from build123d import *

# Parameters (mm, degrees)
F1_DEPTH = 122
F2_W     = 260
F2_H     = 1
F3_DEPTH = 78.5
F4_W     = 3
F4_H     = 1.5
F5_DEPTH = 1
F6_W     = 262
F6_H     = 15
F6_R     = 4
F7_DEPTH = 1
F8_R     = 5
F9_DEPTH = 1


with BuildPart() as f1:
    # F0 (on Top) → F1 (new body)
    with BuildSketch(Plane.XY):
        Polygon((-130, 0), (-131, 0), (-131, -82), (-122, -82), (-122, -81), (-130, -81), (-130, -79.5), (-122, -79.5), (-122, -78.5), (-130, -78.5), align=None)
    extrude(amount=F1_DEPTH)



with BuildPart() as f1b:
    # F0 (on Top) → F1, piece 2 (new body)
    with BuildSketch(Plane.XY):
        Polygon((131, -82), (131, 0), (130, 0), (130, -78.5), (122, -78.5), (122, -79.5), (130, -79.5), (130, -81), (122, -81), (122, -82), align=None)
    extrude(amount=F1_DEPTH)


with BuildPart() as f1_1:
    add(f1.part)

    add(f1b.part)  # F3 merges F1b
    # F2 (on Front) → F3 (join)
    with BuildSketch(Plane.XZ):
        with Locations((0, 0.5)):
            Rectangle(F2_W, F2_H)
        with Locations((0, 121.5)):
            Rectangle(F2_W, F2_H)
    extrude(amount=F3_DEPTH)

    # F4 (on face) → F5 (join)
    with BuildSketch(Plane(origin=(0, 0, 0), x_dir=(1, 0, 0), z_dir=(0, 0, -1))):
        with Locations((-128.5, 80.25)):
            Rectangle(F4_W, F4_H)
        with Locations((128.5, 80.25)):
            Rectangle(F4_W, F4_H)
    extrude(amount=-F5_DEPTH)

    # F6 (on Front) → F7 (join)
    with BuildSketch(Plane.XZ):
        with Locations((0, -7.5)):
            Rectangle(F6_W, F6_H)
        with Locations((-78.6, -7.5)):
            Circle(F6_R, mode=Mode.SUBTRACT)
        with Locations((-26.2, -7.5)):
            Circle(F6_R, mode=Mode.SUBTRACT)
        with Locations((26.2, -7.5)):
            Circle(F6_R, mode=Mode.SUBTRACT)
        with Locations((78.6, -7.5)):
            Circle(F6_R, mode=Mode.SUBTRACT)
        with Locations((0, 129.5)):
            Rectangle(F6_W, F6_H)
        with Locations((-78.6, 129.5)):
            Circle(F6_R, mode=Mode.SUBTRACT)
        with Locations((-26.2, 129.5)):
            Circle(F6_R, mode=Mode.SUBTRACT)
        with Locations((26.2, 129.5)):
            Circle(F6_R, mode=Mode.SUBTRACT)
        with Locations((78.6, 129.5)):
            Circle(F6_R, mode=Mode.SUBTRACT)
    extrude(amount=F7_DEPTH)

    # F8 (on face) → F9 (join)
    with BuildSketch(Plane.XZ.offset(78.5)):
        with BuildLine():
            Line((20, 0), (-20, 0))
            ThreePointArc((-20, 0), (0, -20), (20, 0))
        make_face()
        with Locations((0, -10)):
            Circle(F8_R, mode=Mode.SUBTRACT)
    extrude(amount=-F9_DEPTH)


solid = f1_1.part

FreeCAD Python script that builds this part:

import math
import FreeCAD as App
import Part
import Sketcher

doc = App.newDocument("Part")
body = doc.addObject("PartDesign::Body", "Body")

# Sketch on XY plane
sketch1 = doc.addObject("Sketcher::SketchObject", "Sketch")
body.addObject(sketch1)
sketch1.AttachmentSupport = (doc.XY_Plane, [""])
sketch1.MapMode = "FlatFace"
sketch1.addGeometry(Part.LineSegment(App.Vector(-130, 0, 0), App.Vector(-131, 0, 0)), False)
sketch1.addGeometry(Part.LineSegment(App.Vector(-131, 0, 0), App.Vector(-131, -82, 0)), False)
sketch1.addGeometry(Part.LineSegment(App.Vector(-131, -82, 0), App.Vector(-122, -82, 0)), False)
sketch1.addGeometry(Part.LineSegment(App.Vector(-122, -82, 0), App.Vector(-122, -81, 0)), False)
sketch1.addGeometry(Part.LineSegment(App.Vector(-122, -81, 0), App.Vector(-130, -81, 0)), False)
sketch1.addGeometry(Part.LineSegment(App.Vector(-130, -81, 0), App.Vector(-130, -79.5, 0)), False)
sketch1.addGeometry(Part.LineSegment(App.Vector(-130, -79.5, 0), App.Vector(-122, -79.5, 0)), False)
sketch1.addGeometry(Part.LineSegment(App.Vector(-122, -79.5, 0), App.Vector(-122, -78.5, 0)), False)
sketch1.addGeometry(Part.LineSegment(App.Vector(-122, -78.5, 0), App.Vector(-130, -78.5, 0)), False)
sketch1.addGeometry(Part.LineSegment(App.Vector(-130, -78.5, 0), App.Vector(-130, 0, 0)), False)
sketch1.addConstraint(Sketcher.Constraint("Coincident", 0, 2, 1, 1))
sketch1.addConstraint(Sketcher.Constraint("Coincident", 1, 2, 2, 1))
sketch1.addConstraint(Sketcher.Constraint("Coincident", 2, 2, 3, 1))
sketch1.addConstraint(Sketcher.Constraint("Coincident", 3, 2, 4, 1))
sketch1.addConstraint(Sketcher.Constraint("Coincident", 4, 2, 5, 1))
sketch1.addConstraint(Sketcher.Constraint("Coincident", 5, 2, 6, 1))
sketch1.addConstraint(Sketcher.Constraint("Coincident", 6, 2, 7, 1))
sketch1.addConstraint(Sketcher.Constraint("Coincident", 7, 2, 8, 1))
sketch1.addConstraint(Sketcher.Constraint("Coincident", 8, 2, 9, 1))
sketch1.addConstraint(Sketcher.Constraint("Coincident", 9, 2, 0, 1))
sketch1.addConstraint(Sketcher.Constraint("Horizontal", 0))
sketch1.addConstraint(Sketcher.Constraint("Vertical", 1))
sketch1.addConstraint(Sketcher.Constraint("Horizontal", 2))
sketch1.addConstraint(Sketcher.Constraint("Vertical", 3))
sketch1.addConstraint(Sketcher.Constraint("Horizontal", 4))
sketch1.addConstraint(Sketcher.Constraint("Vertical", 5))
sketch1.addConstraint(Sketcher.Constraint("Horizontal", 6))
sketch1.addConstraint(Sketcher.Constraint("Vertical", 7))
sketch1.addConstraint(Sketcher.Constraint("Horizontal", 8))
sketch1.addConstraint(Sketcher.Constraint("Vertical", 9))
sketch1.addConstraint(Sketcher.Constraint("PointOnObject", 0, 2, -1))
sketch1.addConstraint(Sketcher.Constraint("Vertical", 3, 2, 6, 2))
sketch1.addConstraint(Sketcher.Constraint("Vertical", 5, 2, 8, 2))
sketch1.addConstraint(Sketcher.Constraint("Equal", 0, 3))
sketch1.addConstraint(Sketcher.Constraint("Equal", 3, 7))
sketch1.addConstraint(Sketcher.Constraint("DistanceX", 0, 2, 0, 1, 1.0))
sketch1.addConstraint(Sketcher.Constraint("DistanceX", 2, 1, 2, 2, 9.0))
sketch1.addConstraint(Sketcher.Constraint("DistanceY", 1, 2, 1, 1, 82.0))
sketch1.addConstraint(Sketcher.Constraint("DistanceY", 5, 1, 5, 2, 1.5))
sketch1.addConstraint(Sketcher.Constraint("DistanceX", 0, 2, -1, 1, 131.0))
pad1 = doc.addObject("PartDesign::Pad", "Pad")
body.addObject(pad1)
pad1.Profile = sketch1
pad1.Length = 122
body2 = doc.addObject("PartDesign::Body", "Body001")

# Sketch on XY plane
sketch2 = doc.addObject("Sketcher::SketchObject", "Sketch001")
body2.addObject(sketch2)
sketch2.AttachmentSupport = (doc.getObject("XY_Plane001"), [""])
sketch2.MapMode = "FlatFace"
sketch2.addGeometry(Part.LineSegment(App.Vector(131, -82, 0), App.Vector(131, 0, 0)), False)
sketch2.addGeometry(Part.LineSegment(App.Vector(131, 0, 0), App.Vector(130, 0, 0)), False)
sketch2.addGeometry(Part.LineSegment(App.Vector(130, 0, 0), App.Vector(130, -78.5, 0)), False)
sketch2.addGeometry(Part.LineSegment(App.Vector(130, -78.5, 0), App.Vector(122, -78.5, 0)), False)
sketch2.addGeometry(Part.LineSegment(App.Vector(122, -78.5, 0), App.Vector(122, -79.5, 0)), False)
sketch2.addGeometry(Part.LineSegment(App.Vector(122, -79.5, 0), App.Vector(130, -79.5, 0)), False)
sketch2.addGeometry(Part.LineSegment(App.Vector(130, -79.5, 0), App.Vector(130, -81, 0)), False)
sketch2.addGeometry(Part.LineSegment(App.Vector(130, -81, 0), App.Vector(122, -81, 0)), False)
sketch2.addGeometry(Part.LineSegment(App.Vector(122, -81, 0), App.Vector(122, -82, 0)), False)
sketch2.addGeometry(Part.LineSegment(App.Vector(122, -82, 0), App.Vector(131, -82, 0)), False)
sketch2.addConstraint(Sketcher.Constraint("Coincident", 0, 2, 1, 1))
sketch2.addConstraint(Sketcher.Constraint("Coincident", 1, 2, 2, 1))
sketch2.addConstraint(Sketcher.Constraint("Coincident", 2, 2, 3, 1))
sketch2.addConstraint(Sketcher.Constraint("Coincident", 3, 2, 4, 1))
sketch2.addConstraint(Sketcher.Constraint("Coincident", 4, 2, 5, 1))
sketch2.addConstraint(Sketcher.Constraint("Coincident", 5, 2, 6, 1))
sketch2.addConstraint(Sketcher.Constraint("Coincident", 6, 2, 7, 1))
sketch2.addConstraint(Sketcher.Constraint("Coincident", 7, 2, 8, 1))
sketch2.addConstraint(Sketcher.Constraint("Coincident", 8, 2, 9, 1))
sketch2.addConstraint(Sketcher.Constraint("Coincident", 9, 2, 0, 1))
sketch2.addConstraint(Sketcher.Constraint("Vertical", 0))
sketch2.addConstraint(Sketcher.Constraint("Horizontal", 1))
sketch2.addConstraint(Sketcher.Constraint("Vertical", 2))
sketch2.addConstraint(Sketcher.Constraint("Horizontal", 3))
sketch2.addConstraint(Sketcher.Constraint("Vertical", 4))
sketch2.addConstraint(Sketcher.Constraint("Horizontal", 5))
sketch2.addConstraint(Sketcher.Constraint("Vertical", 6))
sketch2.addConstraint(Sketcher.Constraint("Horizontal", 7))
sketch2.addConstraint(Sketcher.Constraint("Vertical", 8))
sketch2.addConstraint(Sketcher.Constraint("Horizontal", 9))
sketch2.addConstraint(Sketcher.Constraint("PointOnObject", 0, 2, -1))
sketch2.addConstraint(Sketcher.Constraint("Vertical", 2, 2, 5, 2))
sketch2.addConstraint(Sketcher.Constraint("Vertical", 4, 2, 7, 2))
sketch2.addConstraint(Sketcher.Constraint("Equal", 1, 4))
sketch2.addConstraint(Sketcher.Constraint("Equal", 4, 8))
sketch2.addConstraint(Sketcher.Constraint("DistanceX", 1, 2, 1, 1, 1.0))
sketch2.addConstraint(Sketcher.Constraint("DistanceX", 3, 2, 3, 1, 8.0))
sketch2.addConstraint(Sketcher.Constraint("DistanceY", 0, 1, 0, 2, 82.0))
sketch2.addConstraint(Sketcher.Constraint("DistanceY", 2, 2, 2, 1, 78.5))
sketch2.addConstraint(Sketcher.Constraint("DistanceX", -1, 1, 0, 2, 131.0))
pad2 = doc.addObject("PartDesign::Pad", "Pad001")
body2.addObject(pad2)
pad2.Profile = sketch2
pad2.Length = 122
body.AllowCompound = True
doc.recompute()

boolean = doc.addObject("PartDesign::Boolean", "Boolean")
body.addObject(boolean)
boolean.Type = "Fuse"
boolean.addObjects([body2])

# Sketch on XZ plane
sketch3 = doc.addObject("Sketcher::SketchObject", "Sketch002")
body.addObject(sketch3)
sketch3.AttachmentSupport = (doc.XZ_Plane, [""])
sketch3.MapMode = "FlatFace"
sketch3.addGeometry(Part.LineSegment(App.Vector(-130, 1, 0), App.Vector(-130, 0, 0)), False)
sketch3.addGeometry(Part.LineSegment(App.Vector(-130, 0, 0), App.Vector(130, 0, 0)), False)
sketch3.addGeometry(Part.LineSegment(App.Vector(130, 0, 0), App.Vector(130, 1, 0)), False)
sketch3.addGeometry(Part.LineSegment(App.Vector(130, 1, 0), App.Vector(-130, 1, 0)), False)
sketch3.addGeometry(Part.LineSegment(App.Vector(-130, 122, 0), App.Vector(-130, 121, 0)), False)
sketch3.addGeometry(Part.LineSegment(App.Vector(-130, 121, 0), App.Vector(130, 121, 0)), False)
sketch3.addGeometry(Part.LineSegment(App.Vector(130, 121, 0), App.Vector(130, 122, 0)), False)
sketch3.addGeometry(Part.LineSegment(App.Vector(130, 122, 0), App.Vector(-130, 122, 0)), False)
sketch3.addConstraint(Sketcher.Constraint("Coincident", 0, 2, 1, 1))
sketch3.addConstraint(Sketcher.Constraint("Coincident", 1, 2, 2, 1))
sketch3.addConstraint(Sketcher.Constraint("Coincident", 2, 2, 3, 1))
sketch3.addConstraint(Sketcher.Constraint("Coincident", 3, 2, 0, 1))
sketch3.addConstraint(Sketcher.Constraint("Coincident", 4, 2, 5, 1))
sketch3.addConstraint(Sketcher.Constraint("Coincident", 5, 2, 6, 1))
sketch3.addConstraint(Sketcher.Constraint("Coincident", 6, 2, 7, 1))
sketch3.addConstraint(Sketcher.Constraint("Coincident", 7, 2, 4, 1))
sketch3.addConstraint(Sketcher.Constraint("Vertical", 0))
sketch3.addConstraint(Sketcher.Constraint("Horizontal", 1))
sketch3.addConstraint(Sketcher.Constraint("Vertical", 2))
sketch3.addConstraint(Sketcher.Constraint("Horizontal", 3))
sketch3.addConstraint(Sketcher.Constraint("Vertical", 4))
sketch3.addConstraint(Sketcher.Constraint("Horizontal", 5))
sketch3.addConstraint(Sketcher.Constraint("Vertical", 6))
sketch3.addConstraint(Sketcher.Constraint("Horizontal", 7))
sketch3.addConstraint(Sketcher.Constraint("Symmetric", 0, 2, 1, 2, -1, 1))
sketch3.addConstraint(Sketcher.Constraint("Vertical", 3, 2, 4, 2))
sketch3.addConstraint(Sketcher.Constraint("Vertical", 2, 2, 5, 2))
sketch3.addConstraint(Sketcher.Constraint("Equal", 2, 4))
sketch3.addConstraint(Sketcher.Constraint("DistanceX", 1, 1, 1, 2, 260.0))
sketch3.addConstraint(Sketcher.Constraint("DistanceY", 0, 2, 0, 1, 1.0))
sketch3.addConstraint(Sketcher.Constraint("DistanceY", -1, 1, 4, 2, 121.0))
pad3 = doc.addObject("PartDesign::Pad", "Pad002")
body.addObject(pad3)
pad3.Profile = sketch3
pad3.Length = 78.5

# Sketch on XY plane
sketch4 = doc.addObject("Sketcher::SketchObject", "Sketch003")
body.addObject(sketch4)
sketch4.AttachmentSupport = (doc.XY_Plane, [""])
sketch4.MapMode = "FlatFace"
sketch4.addGeometry(Part.LineSegment(App.Vector(-130, -81, 0), App.Vector(-130, -79.5, 0)), False)
sketch4.addGeometry(Part.LineSegment(App.Vector(-130, -79.5, 0), App.Vector(-127, -79.5, 0)), False)
sketch4.addGeometry(Part.LineSegment(App.Vector(-127, -79.5, 0), App.Vector(-127, -81, 0)), False)
sketch4.addGeometry(Part.LineSegment(App.Vector(-127, -81, 0), App.Vector(-130, -81, 0)), False)
sketch4.addGeometry(Part.LineSegment(App.Vector(127, -81, 0), App.Vector(127, -79.5, 0)), False)
sketch4.addGeometry(Part.LineSegment(App.Vector(127, -79.5, 0), App.Vector(130, -79.5, 0)), False)
sketch4.addGeometry(Part.LineSegment(App.Vector(130, -79.5, 0), App.Vector(130, -81, 0)), False)
sketch4.addGeometry(Part.LineSegment(App.Vector(130, -81, 0), App.Vector(127, -81, 0)), False)
sketch4.addConstraint(Sketcher.Constraint("Coincident", 0, 2, 1, 1))
sketch4.addConstraint(Sketcher.Constraint("Coincident", 1, 2, 2, 1))
sketch4.addConstraint(Sketcher.Constraint("Coincident", 2, 2, 3, 1))
sketch4.addConstraint(Sketcher.Constraint("Coincident", 3, 2, 0, 1))
sketch4.addConstraint(Sketcher.Constraint("Coincident", 4, 2, 5, 1))
sketch4.addConstraint(Sketcher.Constraint("Coincident", 5, 2, 6, 1))
sketch4.addConstraint(Sketcher.Constraint("Coincident", 6, 2, 7, 1))
sketch4.addConstraint(Sketcher.Constraint("Coincident", 7, 2, 4, 1))
sketch4.addConstraint(Sketcher.Constraint("Vertical", 0))
sketch4.addConstraint(Sketcher.Constraint("Horizontal", 1))
sketch4.addConstraint(Sketcher.Constraint("Vertical", 2))
sketch4.addConstraint(Sketcher.Constraint("Horizontal", 3))
sketch4.addConstraint(Sketcher.Constraint("Vertical", 4))
sketch4.addConstraint(Sketcher.Constraint("Horizontal", 5))
sketch4.addConstraint(Sketcher.Constraint("Vertical", 6))
sketch4.addConstraint(Sketcher.Constraint("Horizontal", 7))
sketch4.addConstraint(Sketcher.Constraint("Symmetric", 1, 2, 4, 2, -2))
sketch4.addConstraint(Sketcher.Constraint("Symmetric", 3, 2, 6, 2, -2))
sketch4.addConstraint(Sketcher.Constraint("DistanceX", 1, 1, 1, 2, 3.0))
sketch4.addConstraint(Sketcher.Constraint("DistanceY", 0, 1, 0, 2, 1.5))
sketch4.addConstraint(Sketcher.Constraint("DistanceX", 0, 2, -1, 1, 130.0))
sketch4.addConstraint(Sketcher.Constraint("DistanceY", 2, 2, -1, 1, 81.0))
pad4 = doc.addObject("PartDesign::Pad", "Pad003")
body.addObject(pad4)
pad4.Profile = sketch4
pad4.Length = 1

# Sketch on XZ plane
sketch5 = doc.addObject("Sketcher::SketchObject", "Sketch004")
body.addObject(sketch5)
sketch5.AttachmentSupport = (doc.XZ_Plane, [""])
sketch5.MapMode = "FlatFace"
sketch5.addGeometry(Part.LineSegment(App.Vector(-131, 0, 0), App.Vector(-131, -15, 0)), False)
sketch5.addGeometry(Part.LineSegment(App.Vector(-131, -15, 0), App.Vector(131, -15, 0)), False)
sketch5.addGeometry(Part.LineSegment(App.Vector(131, -15, 0), App.Vector(131, 0, 0)), False)
sketch5.addGeometry(Part.LineSegment(App.Vector(131, 0, 0), App.Vector(-131, 0, 0)), False)
sketch5.addGeometry(Part.Circle(App.Vector(-78.6, -7.5, 0), App.Vector(0, 0, 1), 4), False)
sketch5.addGeometry(Part.Circle(App.Vector(-26.2, -7.5, 0), App.Vector(0, 0, 1), 4), False)
sketch5.addGeometry(Part.Circle(App.Vector(26.2, -7.5, 0), App.Vector(0, 0, 1), 4), False)
sketch5.addGeometry(Part.Circle(App.Vector(78.6, -7.5, 0), App.Vector(0, 0, 1), 4), False)
sketch5.addGeometry(Part.LineSegment(App.Vector(-131, 137, 0), App.Vector(-131, 122, 0)), False)
sketch5.addGeometry(Part.LineSegment(App.Vector(-131, 122, 0), App.Vector(131, 122, 0)), False)
sketch5.addGeometry(Part.LineSegment(App.Vector(131, 122, 0), App.Vector(131, 137, 0)), False)
sketch5.addGeometry(Part.LineSegment(App.Vector(131, 137, 0), App.Vector(-131, 137, 0)), False)
sketch5.addGeometry(Part.Circle(App.Vector(-78.6, 129.5, 0), App.Vector(0, 0, 1), 4), False)
sketch5.addGeometry(Part.Circle(App.Vector(-26.2, 129.5, 0), App.Vector(0, 0, 1), 4), False)
sketch5.addGeometry(Part.Circle(App.Vector(26.2, 129.5, 0), App.Vector(0, 0, 1), 4), False)
sketch5.addGeometry(Part.Circle(App.Vector(78.6, 129.5, 0), App.Vector(0, 0, 1), 4), False)
sketch5.addConstraint(Sketcher.Constraint("Coincident", 0, 2, 1, 1))
sketch5.addConstraint(Sketcher.Constraint("Coincident", 1, 2, 2, 1))
sketch5.addConstraint(Sketcher.Constraint("Coincident", 2, 2, 3, 1))
sketch5.addConstraint(Sketcher.Constraint("Coincident", 3, 2, 0, 1))
sketch5.addConstraint(Sketcher.Constraint("Coincident", 8, 2, 9, 1))
sketch5.addConstraint(Sketcher.Constraint("Coincident", 9, 2, 10, 1))
sketch5.addConstraint(Sketcher.Constraint("Coincident", 10, 2, 11, 1))
sketch5.addConstraint(Sketcher.Constraint("Coincident", 11, 2, 8, 1))
sketch5.addConstraint(Sketcher.Constraint("Vertical", 0))
sketch5.addConstraint(Sketcher.Constraint("Horizontal", 1))
sketch5.addConstraint(Sketcher.Constraint("Vertical", 2))
sketch5.addConstraint(Sketcher.Constraint("Horizontal", 3))
sketch5.addConstraint(Sketcher.Constraint("Vertical", 8))
sketch5.addConstraint(Sketcher.Constraint("Horizontal", 9))
sketch5.addConstraint(Sketcher.Constraint("Vertical", 10))
sketch5.addConstraint(Sketcher.Constraint("Horizontal", 11))
sketch5.addConstraint(Sketcher.Constraint("Equal", 4, 5))
sketch5.addConstraint(Sketcher.Constraint("Equal", 5, 6))
sketch5.addConstraint(Sketcher.Constraint("Equal", 6, 7))
sketch5.addConstraint(Sketcher.Constraint("Equal", 7, 12))
sketch5.addConstraint(Sketcher.Constraint("Equal", 12, 13))
sketch5.addConstraint(Sketcher.Constraint("Equal", 13, 14))
sketch5.addConstraint(Sketcher.Constraint("Equal", 14, 15))
sketch5.addConstraint(Sketcher.Constraint("Symmetric", 2, 2, 3, 2, -1, 1))
sketch5.addConstraint(Sketcher.Constraint("Symmetric", 5, 3, 6, 3, -2))
sketch5.addConstraint(Sketcher.Constraint("Symmetric", 4, 3, 7, 3, -2))
sketch5.addConstraint(Sketcher.Constraint("Symmetric", 13, 3, 14, 3, -2))
sketch5.addConstraint(Sketcher.Constraint("Symmetric", 12, 3, 15, 3, -2))
sketch5.addConstraint(Sketcher.Constraint("Horizontal", 4, 3, 5, 3))
sketch5.addConstraint(Sketcher.Constraint("Horizontal", 12, 3, 13, 3))
sketch5.addConstraint(Sketcher.Constraint("Vertical", 4, 3, 12, 3))
sketch5.addConstraint(Sketcher.Constraint("Vertical", 5, 3, 13, 3))
sketch5.addConstraint(Sketcher.Constraint("Vertical", 3, 2, 8, 2))
sketch5.addConstraint(Sketcher.Constraint("Vertical", 2, 2, 9, 2))
sketch5.addConstraint(Sketcher.Constraint("Equal", 2, 8))
sketch5.addConstraint(Sketcher.Constraint("Diameter", 4, 8.0))
sketch5.addConstraint(Sketcher.Constraint("DistanceX", 1, 1, 1, 2, 262.0))
sketch5.addConstraint(Sketcher.Constraint("DistanceY", 0, 2, 0, 1, 15.0))
sketch5.addConstraint(Sketcher.Constraint("DistanceY", -1, 1, 8, 2, 122.0))
sketch5.addConstraint(Sketcher.Constraint("DistanceY", 4, 3, 12, 3, 137.0))
sketch5.addConstraint(Sketcher.Constraint("DistanceX", 4, 3, -1, 1, 78.6))
sketch5.addConstraint(Sketcher.Constraint("DistanceY", 4, 3, -1, 1, 7.5))
sketch5.addConstraint(Sketcher.Constraint("DistanceX", 5, 3, -1, 1, 26.2))
pad5 = doc.addObject("PartDesign::Pad", "Pad004")
body.addObject(pad5)
pad5.Profile = sketch5
pad5.Length = 1

# Sketch on XZ plane
sketch6 = doc.addObject("Sketcher::SketchObject", "Sketch005")
body.addObject(sketch6)
sketch6.AttachmentSupport = (doc.XZ_Plane, [""])
sketch6.MapMode = "FlatFace"
sketch6.AttachmentOffset = App.Placement(App.Vector(0, 0, 78.5), App.Rotation())
sketch6.addGeometry(Part.LineSegment(App.Vector(20, 0, 0), App.Vector(-20, 0, 0)), False)
sketch6.addGeometry(Part.ArcOfCircle(Part.Circle(App.Vector(0, 0, 0), App.Vector(0, 0, 1), 20), math.radians(180), math.radians(360)), False)
sketch6.addGeometry(Part.Circle(App.Vector(0, -10, 0), App.Vector(0, 0, 1), 5), False)
sketch6.addConstraint(Sketcher.Constraint("Coincident", 0, 1, 1, 2))
sketch6.addConstraint(Sketcher.Constraint("Coincident", 1, 1, 0, 2))
sketch6.addConstraint(Sketcher.Constraint("Horizontal", 0))
sketch6.addConstraint(Sketcher.Constraint("Coincident", 1, 3, -1, 1))
sketch6.addConstraint(Sketcher.Constraint("PointOnObject", 2, 3, -2))
sketch6.addConstraint(Sketcher.Constraint("PointOnObject", 0, 1, -1))
sketch6.addConstraint(Sketcher.Constraint("Diameter", 2, 10.0))
sketch6.addConstraint(Sketcher.Constraint("Radius", 1, 20.0))
sketch6.addConstraint(Sketcher.Constraint("DistanceY", 2, 3, -1, 1, 10.0))
pad6 = doc.addObject("PartDesign::Pad", "Pad005")
body.addObject(pad6)
pad6.Profile = sketch6
pad6.Length = 1
pad6.Reversed = True

doc.recompute()
